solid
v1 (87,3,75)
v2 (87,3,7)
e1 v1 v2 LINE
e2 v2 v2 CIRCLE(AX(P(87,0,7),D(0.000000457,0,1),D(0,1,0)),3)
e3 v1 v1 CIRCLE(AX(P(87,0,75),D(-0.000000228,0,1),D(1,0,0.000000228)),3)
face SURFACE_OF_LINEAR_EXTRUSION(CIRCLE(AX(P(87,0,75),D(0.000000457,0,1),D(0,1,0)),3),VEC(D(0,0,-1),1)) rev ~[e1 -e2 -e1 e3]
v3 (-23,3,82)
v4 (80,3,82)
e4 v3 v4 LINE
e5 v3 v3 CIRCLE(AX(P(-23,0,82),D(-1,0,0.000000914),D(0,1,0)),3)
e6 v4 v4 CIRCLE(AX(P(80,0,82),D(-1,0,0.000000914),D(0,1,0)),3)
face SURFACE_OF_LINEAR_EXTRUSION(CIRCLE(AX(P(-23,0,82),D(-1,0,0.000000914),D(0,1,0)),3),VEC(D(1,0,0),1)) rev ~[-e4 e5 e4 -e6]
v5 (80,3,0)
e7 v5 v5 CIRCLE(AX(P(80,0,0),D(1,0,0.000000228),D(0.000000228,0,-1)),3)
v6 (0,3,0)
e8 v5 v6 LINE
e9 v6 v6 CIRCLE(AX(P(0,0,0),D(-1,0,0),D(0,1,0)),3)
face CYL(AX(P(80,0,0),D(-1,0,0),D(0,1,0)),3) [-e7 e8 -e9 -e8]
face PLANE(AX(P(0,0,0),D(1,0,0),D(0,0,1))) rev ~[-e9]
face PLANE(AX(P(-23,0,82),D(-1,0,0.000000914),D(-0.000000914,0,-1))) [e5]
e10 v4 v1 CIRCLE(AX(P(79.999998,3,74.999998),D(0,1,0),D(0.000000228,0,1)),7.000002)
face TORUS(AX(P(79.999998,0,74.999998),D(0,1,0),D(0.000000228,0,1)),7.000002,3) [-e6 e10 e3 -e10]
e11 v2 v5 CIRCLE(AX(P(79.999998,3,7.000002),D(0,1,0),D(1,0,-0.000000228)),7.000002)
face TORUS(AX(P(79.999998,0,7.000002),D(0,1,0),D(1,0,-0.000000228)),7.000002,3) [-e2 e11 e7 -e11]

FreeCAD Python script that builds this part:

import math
import FreeCAD as App
import Part
import Sketcher

V = App.Vector

doc = App.newDocument("Part")
params = doc.addObject("Spreadsheet::Sheet", "Params")
for row, (alias, value) in enumerate([
    ("sketch1_diameter", "6 mm"),
    ("sketch2_radius", "7.000002 mm"),
    ("sketch2_width", "103 mm"),
    ("sketch2_width2", "80 mm"),
    ("sketch2_height", "68 mm"),
], start=1):
    params.set(f"A{row}", alias)
    params.set(f"B{row}", "=" + value)
    params.setAlias(f"B{row}", alias)

body = doc.addObject("PartDesign::Body", "Body")

# Sketch on YZ plane
sketch1 = doc.addObject("Sketcher::SketchObject", "Sketch")
body.addObject(sketch1)
sketch1.AttachmentSupport = (doc.YZ_Plane, [""])
sketch1.MapMode = "FlatFace"
sketch1.addGeometry(Part.Circle(V(0, 0, 0), V(0, 0, 1), 3), False)
sketch1.addConstraint([
    Sketcher.Constraint("Coincident", 0, 3, -1, 1),
    Sketcher.Constraint("Diameter", 0, 6.0),
])
sketch1.setExpression("Constraints[1]", "Params.sketch1_diameter")

# Sketch on XZ plane
sketch2 = doc.addObject("Sketcher::SketchObject", "Sketch001")
body.addObject(sketch2)
sketch2.AttachmentSupport = (doc.XZ_Plane, [""])
sketch2.MapMode = "FlatFace"
sketch2.addGeometry([
    Part.LineSegment(V(-23, 82, 0), V(80, 82, 0)),  # 0
    Part.ArcOfCircle(Part.Circle(V(80, 75, 0), V(0, 0, 1), 7), math.radians(0), math.radians(90)),  # 1
    Part.LineSegment(V(87, 75, 0), V(87, 7, 0)),  # 2
    Part.ArcOfCircle(Part.Circle(V(80, 7, 0), V(0, 0, 1), 7), math.radians(-90), math.radians(0)),  # 3
    Part.LineSegment(V(80, 0, 0), V(0, 0, 0)),  # 4
], False)
sketch2.addConstraint([
    Sketcher.Constraint("Tangent", 0, 2, 1, 2),
    Sketcher.Constraint("Tangent", 1, 1, 2, 1),
    Sketcher.Constraint("Tangent", 2, 2, 3, 2),
    Sketcher.Constraint("Tangent", 3, 1, 4, 1),
    Sketcher.Constraint("Horizontal", 0),
    Sketcher.Constraint("Vertical", 2),
    Sketcher.Constraint("Horizontal", 4),
    Sketcher.Constraint("Coincident", 4, 2, -1, 1),
    Sketcher.Constraint("Equal", 1, 3),
    Sketcher.Constraint("Radius", 1, 7.000002),
    Sketcher.Constraint("DistanceX", 0, 1, 0, 2, 103.0),
    Sketcher.Constraint("DistanceX", 4, 2, 4, 1, 80.0),
    Sketcher.Constraint("DistanceY", 2, 2, 2, 1, 68.0),
])
sketch2.setExpression("Constraints[9]", "Params.sketch2_radius")
sketch2.setExpression("Constraints[10]", "Params.sketch2_width")
sketch2.setExpression("Constraints[11]", "Params.sketch2_width2")
sketch2.setExpression("Constraints[12]", "Params.sketch2_height")
doc.recompute()

additivepipe = doc.addObject("PartDesign::AdditivePipe", "AdditivePipe")
body.addObject(additivepipe)
additivepipe.Profile = sketch1
additivepipe.Spine = (sketch2, ["Edge1", "Edge2", "Edge3", "Edge4", "Edge5"])

doc.recompute()
